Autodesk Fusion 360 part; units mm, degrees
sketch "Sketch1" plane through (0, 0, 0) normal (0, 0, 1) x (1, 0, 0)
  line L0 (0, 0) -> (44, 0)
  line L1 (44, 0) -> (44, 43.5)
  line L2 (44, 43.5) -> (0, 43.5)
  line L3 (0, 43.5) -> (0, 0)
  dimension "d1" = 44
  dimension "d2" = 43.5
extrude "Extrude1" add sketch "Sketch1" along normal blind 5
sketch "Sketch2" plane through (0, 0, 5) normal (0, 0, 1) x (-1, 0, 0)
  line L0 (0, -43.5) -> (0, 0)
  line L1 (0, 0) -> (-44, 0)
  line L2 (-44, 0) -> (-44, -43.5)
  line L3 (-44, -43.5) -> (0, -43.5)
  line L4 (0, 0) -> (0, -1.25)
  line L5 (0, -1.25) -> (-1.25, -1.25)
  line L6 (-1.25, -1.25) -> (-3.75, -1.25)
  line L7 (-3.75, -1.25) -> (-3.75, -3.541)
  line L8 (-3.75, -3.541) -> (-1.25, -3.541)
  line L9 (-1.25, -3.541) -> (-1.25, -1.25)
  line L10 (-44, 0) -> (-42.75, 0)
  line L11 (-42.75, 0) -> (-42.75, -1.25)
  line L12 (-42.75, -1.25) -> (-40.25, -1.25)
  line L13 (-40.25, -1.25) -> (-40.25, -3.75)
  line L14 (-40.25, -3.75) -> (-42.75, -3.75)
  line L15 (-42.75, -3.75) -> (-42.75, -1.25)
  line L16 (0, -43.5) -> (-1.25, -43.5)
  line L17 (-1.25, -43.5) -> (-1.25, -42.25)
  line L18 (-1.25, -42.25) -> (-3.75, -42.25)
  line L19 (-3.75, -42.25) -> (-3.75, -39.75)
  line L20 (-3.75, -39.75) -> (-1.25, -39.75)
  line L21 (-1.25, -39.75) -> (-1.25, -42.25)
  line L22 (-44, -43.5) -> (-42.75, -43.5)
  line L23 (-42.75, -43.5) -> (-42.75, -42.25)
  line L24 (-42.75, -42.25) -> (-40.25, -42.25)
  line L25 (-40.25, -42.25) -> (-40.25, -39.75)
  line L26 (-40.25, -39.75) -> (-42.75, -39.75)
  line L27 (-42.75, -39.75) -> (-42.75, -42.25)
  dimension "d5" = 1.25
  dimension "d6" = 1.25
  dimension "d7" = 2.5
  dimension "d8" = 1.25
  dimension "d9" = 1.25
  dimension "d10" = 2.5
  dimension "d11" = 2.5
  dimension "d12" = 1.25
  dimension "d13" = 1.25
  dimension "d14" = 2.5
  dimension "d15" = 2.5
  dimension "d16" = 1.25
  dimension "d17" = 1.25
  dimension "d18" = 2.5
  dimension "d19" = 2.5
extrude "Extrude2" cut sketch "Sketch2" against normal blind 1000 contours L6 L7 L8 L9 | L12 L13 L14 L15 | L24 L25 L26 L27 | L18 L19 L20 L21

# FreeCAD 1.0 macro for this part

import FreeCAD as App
import Part
import Sketcher

doc = App.newDocument("Part")
params = doc.addObject("Spreadsheet::Sheet", "Params")
for row, (alias, value) in enumerate([
    ("sketch1_width", "44 mm"),
    ("sketch1_height", "43.5 mm"),
    ("pad1_length", "5 mm"),
    ("sketch2_width", "2.5 mm"),
    ("pocket1_length", "1000 mm"),
], start=1):
    params.set(f"A{row}", alias)
    params.set(f"B{row}", "=" + value)
    params.setAlias(f"B{row}", alias)

body = doc.addObject("PartDesign::Body", "Body")

# Sketch on XY plane
sketch1 = body.newObject("Sketcher::SketchObject", "Sketch")
sketch1.AttachmentSupport = (doc.getObject("XY_Plane"), [""])
sketch1.MapMode = "FlatFace"
sketch1.addGeometry(Part.LineSegment(App.Vector(0, 43.5, 0), App.Vector(0, 0, 0)), False)
sketch1.addGeometry(Part.LineSegment(App.Vector(0, 0, 0), App.Vector(44, 0, 0)), False)
sketch1.addGeometry(Part.LineSegment(App.Vector(44, 0, 0), App.Vector(44, 43.5, 0)), False)
sketch1.addGeometry(Part.LineSegment(App.Vector(44, 43.5, 0), App.Vector(0, 43.5, 0)), False)
sketch1.addConstraint(Sketcher.Constraint("Coincident", 0, 2, 1, 1))
sketch1.addConstraint(Sketcher.Constraint("Coincident", 1, 2, 2, 1))
sketch1.addConstraint(Sketcher.Constraint("Coincident", 2, 2, 3, 1))
sketch1.addConstraint(Sketcher.Constraint("Coincident", 3, 2, 0, 1))
sketch1.addConstraint(Sketcher.Constraint("Vertical", 0))
sketch1.addConstraint(Sketcher.Constraint("Horizontal", 1))
sketch1.addConstraint(Sketcher.Constraint("Vertical", 2))
sketch1.addConstraint(Sketcher.Constraint("Horizontal", 3))
sketch1.addConstraint(Sketcher.Constraint("Coincident", 0, 2, -1, 1))
sketch1.addConstraint(Sketcher.Constraint("DistanceX", 1, 1, 1, 2, 44.0))
sketch1.addConstraint(Sketcher.Constraint("DistanceY", 0, 2, 0, 1, 43.5))
sketch1.setExpression("Constraints[9]", "Params.sketch1_width")
sketch1.setExpression("Constraints[10]", "Params.sketch1_height")
pad1 = body.newObject("PartDesign::Pad", "Pad")
pad1.Profile = sketch1
pad1.setExpression("Length", "Params.pad1_length")

# Sketch on XY plane
sketch2 = body.newObject("Sketcher::SketchObject", "Sketch001")
sketch2.AttachmentSupport = (doc.getObject("XY_Plane"), [""])
sketch2.MapMode = "FlatFace"
sketch2.AttachmentOffset = App.Placement(App.Vector(0, 0, 5), App.Rotation())
sketch2.addGeometry(Part.LineSegment(App.Vector(1.25, 3.541, 0), App.Vector(1.25, 1.25, 0)), False)
sketch2.addGeometry(Part.LineSegment(App.Vector(1.25, 1.25, 0), App.Vector(3.75, 1.25, 0)), False)
sketch2.addGeometry(Part.LineSegment(App.Vector(3.75, 1.25, 0), App.Vector(3.75, 3.541, 0)), False)
sketch2.addGeometry(Part.LineSegment(App.Vector(3.75, 3.541, 0), App.Vector(1.25, 3.541, 0)), False)
sketch2.addGeometry(Part.LineSegment(App.Vector(40.25, 1.25, 0), App.Vector(42.75, 1.25, 0)), False)
sketch2.addGeometry(Part.LineSegment(App.Vector(42.75, 1.25, 0), App.Vector(42.75, 3.75, 0)), False)
sketch2.addGeometry(Part.LineSegment(App.Vector(42.75, 3.75, 0), App.Vector(40.25, 3.75, 0)), False)
sketch2.addGeometry(Part.LineSegment(App.Vector(40.25, 3.75, 0), App.Vector(40.25, 1.25, 0)), False)
sketch2.addGeometry(Part.LineSegment(App.Vector(42.75, 39.75, 0), App.Vector(42.75, 42.25, 0)), False)
sketch2.addGeometry(Part.LineSegment(App.Vector(42.75, 42.25, 0), App.Vector(40.25, 42.25, 0)), False)
sketch2.addGeometry(Part.LineSegment(App.Vector(40.25, 42.25, 0), App.Vector(40.25, 39.75, 0)), False)
sketch2.addGeometry(Part.LineSegment(App.Vector(40.25, 39.75, 0), App.Vector(42.75, 39.75, 0)), False)
sketch2.addGeometry(Part.LineSegment(App.Vector(3.75, 42.25, 0), App.Vector(1.25, 42.25, 0)), False)
sketch2.addGeometry(Part.LineSegment(App.Vector(1.25, 42.25, 0), App.Vector(1.25, 39.75, 0)), False)
sketch2.addGeometry(Part.LineSegment(App.Vector(1.25, 39.75, 0), App.Vector(3.75, 39.75, 0)), False)
sketch2.addGeometry(Part.LineSegment(App.Vector(3.75, 39.75, 0), App.Vector(3.75, 42.25, 0)), False)
sketch2.addConstraint(Sketcher.Constraint("Coincident", 0, 2, 1, 1))
sketch2.addConstraint(Sketcher.Constraint("Coincident", 1, 2, 2, 1))
sketch2.addConstraint(Sketcher.Constraint("Coincident", 2, 2, 3, 1))
sketch2.addConstraint(Sketcher.Constraint("Coincident", 3, 2, 0, 1))
sketch2.addConstraint(Sketcher.Constraint("Coincident", 4, 2, 5, 1))
sketch2.addConstraint(Sketcher.Constraint("Coincident", 5, 2, 6, 1))
sketch2.addConstraint(Sketcher.Constraint("Coincident", 6, 2, 7, 1))
sketch2.addConstraint(Sketcher.Constraint("Coincident", 7, 2, 4, 1))
sketch2.addConstraint(Sketcher.Constraint("Coincident", 8, 2, 9, 1))
sketch2.addConstraint(Sketcher.Constraint("Coincident", 9, 2, 10, 1))
sketch2.addConstraint(Sketcher.Constraint("Coincident", 10, 2, 11, 1))
sketch2.addConstraint(Sketcher.Constraint("Coincident", 11, 2, 8, 1))
sketch2.addConstraint(Sketcher.Constraint("Coincident", 12, 2, 13, 1))
sketch2.addConstraint(Sketcher.Constraint("Coincident", 13, 2, 14, 1))
sketch2.addConstraint(Sketcher.Constraint("Coincident", 14, 2, 15, 1))
sketch2.addConstraint(Sketcher.Constraint("Coincident", 15, 2, 12, 1))
sketch2.addConstraint(Sketcher.Constraint("Vertical", 0))
sketch2.addConstraint(Sketcher.Constraint("Horizontal", 1))
sketch2.addConstraint(Sketcher.Constraint("Vertical", 2))
sketch2.addConstraint(Sketcher.Constraint("Horizontal", 3))
sketch2.addConstraint(Sketcher.Constraint("Horizontal", 4))
sketch2.addConstraint(Sketcher.Constraint("Vertical", 5))
sketch2.addConstraint(Sketcher.Constraint("Horizontal", 6))
sketch2.addConstraint(Sketcher.Constraint("Vertical", 7))
sketch2.addConstraint(Sketcher.Constraint("Vertical", 8))
sketch2.addConstraint(Sketcher.Constraint("Horizontal", 9))
sketch2.addConstraint(Sketcher.Constraint("Vertical", 10))
sketch2.addConstraint(Sketcher.Constraint("Horizontal", 11))
sketch2.addConstraint(Sketcher.Constraint("Horizontal", 12))
sketch2.addConstraint(Sketcher.Constraint("Vertical", 13))
sketch2.addConstraint(Sketcher.Constraint("Horizontal", 14))
sketch2.addConstraint(Sketcher.Constraint("Vertical", 15))
sketch2.addConstraint(Sketcher.Constraint("Horizontal", 1, 2, 4, 2))
sketch2.addConstraint(Sketcher.Constraint("Horizontal", 9, 2, 12, 2))
sketch2.addConstraint(Sketcher.Constraint("Horizontal", 11, 2, 13, 2))
sketch2.addConstraint(Sketcher.Constraint("Vertical", 5, 2, 8, 2))
sketch2.addConstraint(Sketcher.Constraint("Vertical", 7, 2, 9, 2))
sketch2.addConstraint(Sketcher.Constraint("Vertical", 3, 2, 12, 2))
sketch2.addConstraint(Sketcher.Constraint("Vertical", 2, 2, 14, 2))
sketch2.addConstraint(Sketcher.Constraint("Equal", 3, 4))
sketch2.addConstraint(Sketcher.Constraint("Equal", 14, 5))
sketch2.addConstraint(Sketcher.Constraint("Equal", 7, 8))
sketch2.addConstraint(Sketcher.Constraint("DistanceX", 1, 1, 1, 2, 2.5))
sketch2.addConstraint(Sketcher.Constraint("DistanceX", -1, 1, 0, 2, 1.25))
sketch2.addConstraint(Sketcher.Constraint("DistanceY", -1, 1, 0, 2, 1.25))
sketch2.addConstraint(Sketcher.Constraint("DistanceX", 1, 2, 4, 2, 39.0))
sketch2.addConstraint(Sketcher.Constraint("DistanceY", 4, 2, 8, 2, 41.0))
sketch2.addConstraint(Sketcher.Constraint("DistanceY", 0, 2, 0, 1, 2.291))
sketch2.setExpression("Constraints[42]", "Params.sketch2_width")
pocket1 = body.newObject("PartDesign::Pocket", "Pocket")
pocket1.Profile = sketch2
pocket1.setExpression("Length", "Params.pocket1_length")

doc.recompute()
